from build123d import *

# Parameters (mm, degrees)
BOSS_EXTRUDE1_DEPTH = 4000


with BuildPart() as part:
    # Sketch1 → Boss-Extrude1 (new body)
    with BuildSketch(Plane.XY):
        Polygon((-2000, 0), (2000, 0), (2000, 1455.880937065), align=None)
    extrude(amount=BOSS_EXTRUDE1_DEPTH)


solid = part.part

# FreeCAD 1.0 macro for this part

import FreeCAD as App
import Part
import Sketcher
from FreeCAD import Vector
Q = App.Units.Quantity

doc = App.newDocument("Part")
body = doc.addObject("PartDesign::Body", "Body")

sketch1 = body.newObject("Sketcher::SketchObject", "Sketch")
sketch1.AttachmentSupport = (doc.getObject("XY_Plane"), [""])
sketch1.MapMode = "FlatFace"
sketch1.addGeometry([
    Part.LineSegment(Vector(-2000, 0, 0), Vector(2000, 0, 0)),
    Part.LineSegment(Vector(2000, 0, 0), Vector(2000, 1456, 0)),
    Part.LineSegment(Vector(2000, 1456, 0), Vector(-2000, 0, 0)),
], False)
sketch1.addConstraint([
    Sketcher.Constraint("Coincident", 0, 2, 1, 1),
    Sketcher.Constraint("Coincident", 1, 2, 2, 1),
    Sketcher.Constraint("Coincident", 2, 2, 0, 1),
    Sketcher.Constraint("Horizontal", 0),
    Sketcher.Constraint("Vertical", 1),
    Sketcher.Constraint("Symmetric", 0, 2, 2, 2, -1, 1),
    Sketcher.Constraint("DistanceX", 0, 1, 0, 2, Q("4000 mm")),
    Sketcher.Constraint("Angle", 2, Q("-160 deg")),
])
pad1 = body.newObject("PartDesign::Pad", "Pad")
pad1.Profile = sketch1
pad1.Length = 4000

doc.recompute()
